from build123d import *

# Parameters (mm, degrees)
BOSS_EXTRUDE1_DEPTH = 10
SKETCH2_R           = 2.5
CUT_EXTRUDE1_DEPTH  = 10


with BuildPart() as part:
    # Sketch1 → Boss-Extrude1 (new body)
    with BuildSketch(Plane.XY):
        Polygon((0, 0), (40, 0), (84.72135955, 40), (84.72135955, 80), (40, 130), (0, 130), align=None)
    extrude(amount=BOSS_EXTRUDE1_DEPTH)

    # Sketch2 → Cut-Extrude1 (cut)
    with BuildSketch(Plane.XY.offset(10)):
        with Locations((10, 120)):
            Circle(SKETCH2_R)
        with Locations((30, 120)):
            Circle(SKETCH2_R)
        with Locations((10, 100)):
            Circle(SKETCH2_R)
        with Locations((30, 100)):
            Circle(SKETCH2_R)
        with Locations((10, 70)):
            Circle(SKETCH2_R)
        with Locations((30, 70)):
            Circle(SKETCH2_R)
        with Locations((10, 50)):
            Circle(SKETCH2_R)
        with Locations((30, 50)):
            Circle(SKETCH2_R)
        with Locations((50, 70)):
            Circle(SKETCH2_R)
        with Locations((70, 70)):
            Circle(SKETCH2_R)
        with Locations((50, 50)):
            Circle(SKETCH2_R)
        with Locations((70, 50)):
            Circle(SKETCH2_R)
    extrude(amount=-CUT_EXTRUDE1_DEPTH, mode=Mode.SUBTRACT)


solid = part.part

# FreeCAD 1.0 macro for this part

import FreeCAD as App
import Part
import Sketcher

doc = App.newDocument("Part")
body = doc.addObject("PartDesign::Body", "Body")

# Sketch on XY plane
sketch1 = body.newObject("Sketcher::SketchObject", "Sketch")
sketch1.AttachmentSupport = (doc.getObject("XY_Plane"), [""])
sketch1.MapMode = "FlatFace"
sketch1.addGeometry([
    Part.LineSegment(App.Vector(0, 0, 0), App.Vector(40, 0, 0)),  # 0
    Part.LineSegment(App.Vector(40, 0, 0), App.Vector(84.72136, 40, 0)),  # 1
    Part.LineSegment(App.Vector(84.72136, 40, 0), App.Vector(84.72136, 80, 0)),  # 2
    Part.LineSegment(App.Vector(84.72136, 80, 0), App.Vector(40, 130, 0)),  # 3
    Part.LineSegment(App.Vector(40, 130, 0), App.Vector(0, 130, 0)),  # 4
    Part.LineSegment(App.Vector(0, 130, 0), App.Vector(0, 0, 0)),  # 5
], False)
sketch1.addConstraint([
    Sketcher.Constraint("Coincident", 0, 2, 1, 1),
    Sketcher.Constraint("Coincident", 1, 2, 2, 1),
    Sketcher.Constraint("Coincident", 2, 2, 3, 1),
    Sketcher.Constraint("Coincident", 3, 2, 4, 1),
    Sketcher.Constraint("Coincident", 4, 2, 5, 1),
    Sketcher.Constraint("Coincident", 5, 2, 0, 1),
    Sketcher.Constraint("Horizontal", 0),
    Sketcher.Constraint("Vertical", 2),
    Sketcher.Constraint("Horizontal", 4),
    Sketcher.Constraint("Vertical", 5),
    Sketcher.Constraint("Coincident", 5, 2, -1, 1),
    Sketcher.Constraint("Perpendicular", 1, 3),
    Sketcher.Constraint("Vertical", 0, 2, 3, 2),
    Sketcher.Constraint("Equal", 4, 2),
    Sketcher.Constraint("DistanceX", 0, 1, 0, 2, 40.0),
    Sketcher.Constraint("DistanceY", 5, 2, 5, 1, 130.0),
    Sketcher.Constraint("Distance", 1, 60.0),
])
pad1 = body.newObject("PartDesign::Pad", "Pad")
pad1.Profile = sketch1
pad1.Length = 10

# Sketch on XY plane
sketch2 = body.newObject("Sketcher::SketchObject", "Sketch001")
sketch2.AttachmentSupport = (doc.getObject("XY_Plane"), [""])
sketch2.MapMode = "FlatFace"
sketch2.AttachmentOffset = App.Placement(App.Vector(0, 0, 10), App.Rotation())
sketch2.addGeometry([
    Part.Circle(App.Vector(10, 120, 0), App.Vector(0, 0, 1), 2.5),  # 0
    Part.Circle(App.Vector(30, 120, 0), App.Vector(0, 0, 1), 2.5),  # 1
    Part.Circle(App.Vector(10, 100, 0), App.Vector(0, 0, 1), 2.5),  # 2
    Part.Circle(App.Vector(30, 100, 0), App.Vector(0, 0, 1), 2.5),  # 3
    Part.Circle(App.Vector(10, 70, 0), App.Vector(0, 0, 1), 2.5),  # 4
    Part.Circle(App.Vector(30, 70, 0), App.Vector(0, 0, 1), 2.5),  # 5
    Part.Circle(App.Vector(10, 50, 0), App.Vector(0, 0, 1), 2.5),  # 6
    Part.Circle(App.Vector(30, 50, 0), App.Vector(0, 0, 1), 2.5),  # 7
    Part.Circle(App.Vector(50, 70, 0), App.Vector(0, 0, 1), 2.5),  # 8
    Part.Circle(App.Vector(70, 70, 0), App.Vector(0, 0, 1), 2.5),  # 9
    Part.Circle(App.Vector(50, 50, 0), App.Vector(0, 0, 1), 2.5),  # 10
    Part.Circle(App.Vector(70, 50, 0), App.Vector(0, 0, 1), 2.5),  # 11
], False)
sketch2.addConstraint([
    Sketcher.Constraint("Equal", 0, 1),
    Sketcher.Constraint("Equal", 1, 2),
    Sketcher.Constraint("Equal", 2, 3),
    Sketcher.Constraint("Equal", 3, 4),
    Sketcher.Constraint("Equal", 4, 5),
    Sketcher.Constraint("Equal", 5, 6),
    Sketcher.Constraint("Equal", 6, 7),
    Sketcher.Constraint("Equal", 7, 8),
    Sketcher.Constraint("Equal", 8, 9),
    Sketcher.Constraint("Equal", 9, 10),
    Sketcher.Constraint("Equal", 10, 11),
    Sketcher.Constraint("Horizontal", 0, 3, 1, 3),
    Sketcher.Constraint("Horizontal", 2, 3, 3, 3),
    Sketcher.Constraint("Horizontal", 4, 3, 5, 3),
    Sketcher.Constraint("Horizontal", 6, 3, 7, 3),
    Sketcher.Constraint("Horizontal", 5, 3, 8, 3),
    Sketcher.Constraint("Horizontal", 8, 3, 9, 3),
    Sketcher.Constraint("Horizontal", 7, 3, 10, 3),
    Sketcher.Constraint("Horizontal", 10, 3, 11, 3),
    Sketcher.Constraint("Vertical", 0, 3, 2, 3),
    Sketcher.Constraint("Vertical", 1, 3, 3, 3),
    Sketcher.Constraint("Vertical", 2, 3, 4, 3),
    Sketcher.Constraint("Vertical", 3, 3, 5, 3),
    Sketcher.Constraint("Vertical", 4, 3, 6, 3),
    Sketcher.Constraint("Vertical", 5, 3, 7, 3),
    Sketcher.Constraint("Vertical", 8, 3, 10, 3),
    Sketcher.Constraint("Vertical", 9, 3, 11, 3),
    Sketcher.Constraint("Diameter", 0, 5.0),
    Sketcher.Constraint("DistanceX", -1, 1, 0, 3, 10.0),
    Sketcher.Constraint("DistanceY", -1, 1, 0, 3, 120.0),
    Sketcher.Constraint("DistanceX", -1, 1, 1, 3, 30.0),
    Sketcher.Constraint("DistanceY", -1, 1, 2, 3, 100.0),
    Sketcher.Constraint("DistanceY", -1, 1, 4, 3, 70.0),
    Sketcher.Constraint("DistanceY", -1, 1, 6, 3, 50.0),
    Sketcher.Constraint("DistanceX", -1, 1, 8, 3, 50.0),
    Sketcher.Constraint("DistanceX", -1, 1, 9, 3, 70.0),
])
pocket1 = body.newObject("PartDesign::Pocket", "Pocket")
pocket1.Profile = sketch2
pocket1.Length = 10

doc.recompute()
